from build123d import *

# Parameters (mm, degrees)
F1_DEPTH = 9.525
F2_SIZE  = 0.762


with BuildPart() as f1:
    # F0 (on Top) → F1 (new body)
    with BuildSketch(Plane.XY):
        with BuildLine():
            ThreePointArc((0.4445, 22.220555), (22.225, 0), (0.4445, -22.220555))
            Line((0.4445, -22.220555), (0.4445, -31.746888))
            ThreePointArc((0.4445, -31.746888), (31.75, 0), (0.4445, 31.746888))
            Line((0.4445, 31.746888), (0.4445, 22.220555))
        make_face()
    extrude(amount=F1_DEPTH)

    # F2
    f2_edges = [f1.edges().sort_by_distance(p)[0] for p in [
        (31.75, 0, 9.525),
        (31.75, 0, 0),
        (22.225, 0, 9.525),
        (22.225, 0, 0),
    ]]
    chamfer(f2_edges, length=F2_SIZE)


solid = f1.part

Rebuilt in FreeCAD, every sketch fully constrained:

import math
import FreeCAD as App
import Part
import Sketcher
from FreeCAD import Vector
Q = App.Units.Quantity


def edges_at(feature, points):
    """Names of the edges that pass closest to the given points."""
    edges = feature.Shape.Edges
    near = lambda p: min(range(len(edges)), key=lambda i: edges[i].distToShape(Part.Vertex(*p))[0])
    return sorted({f"Edge{near(p) + 1}" for p in points})

doc = App.newDocument("Part")
params = doc.addObject("Spreadsheet::Sheet", "Params")
for row, (alias, value) in enumerate([
    ("sketch1_radius", "1.25 in"),
    ("sketch1_radius2", "0.875 in"),
    ("pad1_length", "0.375 in"),
    ("chamfer_size", "0.03 in"),
], start=1):
    params.set(f"A{row}", alias)
    params.set(f"B{row}", "=" + value)
    params.setAlias(f"B{row}", alias)

body = doc.addObject("PartDesign::Body", "Body")

sketch1 = body.newObject("Sketcher::SketchObject", "Sketch")
sketch1.AttachmentSupport = (doc.getObject("XY_Plane"), [""])
sketch1.MapMode = "FlatFace"
sketch1.addGeometry([
    Part.ArcOfCircle(Part.Circle(Vector(0, 0, 0), Vector(0, 0, 1), 22), math.radians(-89), math.radians(89)),
    Part.LineSegment(Vector(0, -22, 0), Vector(0, -32, 0)),
    Part.ArcOfCircle(Part.Circle(Vector(0, 0, 0), Vector(0, 0, 1), 32), math.radians(-89), math.radians(89)),
    Part.LineSegment(Vector(0, 32, 0), Vector(0, 22, 0)),
], False)
sketch1.addConstraint([
    Sketcher.Constraint("Coincident", 0, 1, 1, 1),
    Sketcher.Constraint("Coincident", 1, 2, 2, 1),
    Sketcher.Constraint("Coincident", 2, 2, 3, 1),
    Sketcher.Constraint("Coincident", 3, 2, 0, 2),
    Sketcher.Constraint("Vertical", 1),
    Sketcher.Constraint("Vertical", 3),
    Sketcher.Constraint("Coincident", 0, 3, -1, 1),
    Sketcher.Constraint("Coincident", 2, 3, -1, 1),
    Sketcher.Constraint("Vertical", 1, 2, 2, 2),
    Sketcher.Constraint("Radius", 2, Q("1.25 in")),
    Sketcher.Constraint("Radius", 0, Q("0.875 in")),
    Sketcher.Constraint("DistanceX", -1, 1, 0, 1, Q("0.0175 in")),
])
sketch1.setExpression("Constraints[9]", "Params.sketch1_radius")
sketch1.setExpression("Constraints[10]", "Params.sketch1_radius2")
pad1 = body.newObject("PartDesign::Pad", "Pad")
pad1.Profile = sketch1
pad1.setExpression("Length", "Params.pad1_length")
doc.recompute()

chamfer = body.newObject("PartDesign::Chamfer", "Chamfer")
chamfer.Base = (pad1, edges_at(pad1, [
    (31.75, 0, 9.525),
    (31.75, 0, 0),
    (22.225, 0, 9.525),
    (22.225, 0, 0),
]))
chamfer.setExpression("Size", "Params.chamfer_size")

doc.recompute()
